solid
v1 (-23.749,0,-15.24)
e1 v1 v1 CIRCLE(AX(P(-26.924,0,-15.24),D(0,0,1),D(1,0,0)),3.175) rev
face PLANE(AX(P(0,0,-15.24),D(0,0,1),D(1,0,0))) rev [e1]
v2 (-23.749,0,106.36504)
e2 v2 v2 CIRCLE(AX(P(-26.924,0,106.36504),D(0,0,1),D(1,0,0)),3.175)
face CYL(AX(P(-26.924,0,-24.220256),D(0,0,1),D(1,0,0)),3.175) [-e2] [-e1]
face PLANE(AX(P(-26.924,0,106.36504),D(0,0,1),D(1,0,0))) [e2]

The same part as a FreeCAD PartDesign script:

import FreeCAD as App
import Part
import Sketcher
from FreeCAD import Vector
Q = App.Units.Quantity

doc = App.newDocument("Part")
body = doc.addObject("PartDesign::Body", "Body")

# Sketch on XY plane
sketch1 = body.newObject("Sketcher::SketchObject", "Sketch")
sketch1.AttachmentSupport = (doc.getObject("XY_Plane"), [""])
sketch1.MapMode = "FlatFace"
sketch1.AttachmentOffset = App.Placement(Vector(0, 0, 4.1876 * 25.4), App.Rotation())
sketch1.addGeometry(Part.Circle(Vector(-26.9, 0, 0), Vector(0, 0, 1), 3.2), False)
sketch1.addConstraint(Sketcher.Constraint("PointOnObject", 0, 3, -1))
sketch1.addConstraint(Sketcher.Constraint("Diameter", 0, Q("0.25 in")))
sketch1.addConstraint(Sketcher.Constraint("DistanceX", 0, 3, -1, 1, Q("1.06 in")))
pad1 = body.newObject("PartDesign::Pad", "Pad")
pad1.Profile = sketch1
pad1.Length = Q("4.7876 in")
pad1.Reversed = True

doc.recompute()
